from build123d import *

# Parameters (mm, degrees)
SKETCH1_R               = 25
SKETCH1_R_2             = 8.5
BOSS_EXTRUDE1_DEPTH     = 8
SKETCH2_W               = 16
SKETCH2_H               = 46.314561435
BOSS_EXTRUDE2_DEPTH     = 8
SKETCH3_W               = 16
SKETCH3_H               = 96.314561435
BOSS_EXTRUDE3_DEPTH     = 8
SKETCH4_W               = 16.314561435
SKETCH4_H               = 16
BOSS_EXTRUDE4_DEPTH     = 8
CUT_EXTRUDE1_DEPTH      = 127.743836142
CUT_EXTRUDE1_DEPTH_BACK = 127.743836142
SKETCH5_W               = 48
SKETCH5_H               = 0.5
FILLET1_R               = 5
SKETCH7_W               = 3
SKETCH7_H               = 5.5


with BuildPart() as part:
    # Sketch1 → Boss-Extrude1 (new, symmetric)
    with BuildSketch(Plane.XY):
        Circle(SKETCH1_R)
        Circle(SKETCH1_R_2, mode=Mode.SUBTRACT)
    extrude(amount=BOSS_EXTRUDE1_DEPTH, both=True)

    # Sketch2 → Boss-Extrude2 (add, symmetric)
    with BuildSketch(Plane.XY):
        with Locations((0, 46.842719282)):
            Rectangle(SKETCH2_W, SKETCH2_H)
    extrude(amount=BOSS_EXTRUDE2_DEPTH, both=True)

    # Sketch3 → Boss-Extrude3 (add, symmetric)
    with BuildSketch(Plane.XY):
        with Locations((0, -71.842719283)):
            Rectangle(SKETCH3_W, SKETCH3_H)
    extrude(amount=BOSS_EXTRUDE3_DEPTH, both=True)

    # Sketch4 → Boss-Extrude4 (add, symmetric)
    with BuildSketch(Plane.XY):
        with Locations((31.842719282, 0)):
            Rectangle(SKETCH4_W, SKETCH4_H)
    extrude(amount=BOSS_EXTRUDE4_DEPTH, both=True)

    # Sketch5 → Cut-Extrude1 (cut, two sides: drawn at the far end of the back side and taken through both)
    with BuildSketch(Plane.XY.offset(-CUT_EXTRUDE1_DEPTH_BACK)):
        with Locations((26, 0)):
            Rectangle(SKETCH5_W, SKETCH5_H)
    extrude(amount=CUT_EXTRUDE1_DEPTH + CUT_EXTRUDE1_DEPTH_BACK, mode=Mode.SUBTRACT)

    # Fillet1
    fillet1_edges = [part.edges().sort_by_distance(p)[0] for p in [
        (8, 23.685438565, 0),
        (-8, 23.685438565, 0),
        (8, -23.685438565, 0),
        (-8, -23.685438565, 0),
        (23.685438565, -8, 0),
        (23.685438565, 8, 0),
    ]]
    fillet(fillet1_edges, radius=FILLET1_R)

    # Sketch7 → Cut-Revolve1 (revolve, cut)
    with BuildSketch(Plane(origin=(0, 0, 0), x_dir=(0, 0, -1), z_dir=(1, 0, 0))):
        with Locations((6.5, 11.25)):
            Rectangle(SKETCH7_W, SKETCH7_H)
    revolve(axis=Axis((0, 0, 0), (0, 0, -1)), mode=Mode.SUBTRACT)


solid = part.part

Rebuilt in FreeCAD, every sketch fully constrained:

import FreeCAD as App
import Part
import Sketcher
from FreeCAD import Vector


def edges_at(feature, points):
    """Names of the edges that pass closest to the given points."""
    edges = feature.Shape.Edges
    near = lambda p: min(range(len(edges)), key=lambda i: edges[i].distToShape(Part.Vertex(*p))[0])
    return sorted({f"Edge{near(p) + 1}" for p in points})

doc = App.newDocument("Part")
params = doc.addObject("Spreadsheet::Sheet", "Params")
for row, (alias, value) in enumerate([
    ("sketch1_diameter", "50 mm"),
    ("sketch1_diameter2", "17 mm"),
    ("pad1_length", "16 mm"),
    ("sketch2_width", "16 mm"),
    ("pad2_length", "16 mm"),
    ("sketch3_width", "16 mm"),
    ("pad3_length", "16 mm"),
    ("sketch4_height", "16 mm"),
    ("pad4_length", "16 mm"),
    ("sketch5_width", "48 mm"),
    ("sketch5_height", "0.5 mm"),
    ("fillet_radius", "5 mm"),
    ("sketch6_height", "3 mm"),
    ("sketch6_width", "5.5 mm"),
    ("groove_angle", "360 deg"),
], start=1):
    params.set(f"A{row}", alias)
    params.set(f"B{row}", "=" + value)
    params.setAlias(f"B{row}", alias)

body = doc.addObject("PartDesign::Body", "Body")

sketch1 = body.newObject("Sketcher::SketchObject", "Sketch")
sketch1.AttachmentSupport = (doc.getObject("XY_Plane"), [""])
sketch1.MapMode = "FlatFace"
sketch1.addGeometry([
    Part.Circle(Vector(0, 0, 0), Vector(0, 0, 1), 25),
    Part.Circle(Vector(0, 0, 0), Vector(0, 0, 1), 8.5),
], False)
sketch1.addConstraint([
    Sketcher.Constraint("Coincident", 0, 3, -1, 1),
    Sketcher.Constraint("Coincident", 1, 3, -1, 1),
    Sketcher.Constraint("Diameter", 0, 50.0),
    Sketcher.Constraint("Diameter", 1, 17.0),
])
sketch1.setExpression("Constraints[2]", "Params.sketch1_diameter")
sketch1.setExpression("Constraints[3]", "Params.sketch1_diameter2")
pad1 = body.newObject("PartDesign::Pad", "Pad")
pad1.Profile = sketch1
pad1.setExpression("Length", "Params.pad1_length")
pad1.Midplane = True

sketch2 = body.newObject("Sketcher::SketchObject", "Sketch001")
sketch2.AttachmentSupport = (doc.getObject("XY_Plane"), [""])
sketch2.MapMode = "FlatFace"
sketch2.addGeometry([
    Part.LineSegment(Vector(-8, 70, 0), Vector(-8, 23.685439, 0)),
    Part.LineSegment(Vector(-8, 23.685439, 0), Vector(8, 23.685439, 0)),
    Part.LineSegment(Vector(8, 23.685439, 0), Vector(8, 70, 0)),
    Part.LineSegment(Vector(8, 70, 0), Vector(-8, 70, 0)),
], False)
sketch2.addConstraint([
    Sketcher.Constraint("Coincident", 0, 2, 1, 1),
    Sketcher.Constraint("Coincident", 1, 2, 2, 1),
    Sketcher.Constraint("Coincident", 2, 2, 3, 1),
    Sketcher.Constraint("Coincident", 3, 2, 0, 1),
    Sketcher.Constraint("Vertical", 0),
    Sketcher.Constraint("Horizontal", 1),
    Sketcher.Constraint("Vertical", 2),
    Sketcher.Constraint("Horizontal", 3),
    Sketcher.Constraint("DistanceX", 1, 1, 1, 2, 16.0),
    Sketcher.Constraint("DistanceX", 0, 2, -1, 1, 8.0),
    Sketcher.Constraint("DistanceY", -1, 1, 2, 2, 70.0),
    Sketcher.Constraint("DistanceY", 0, 2, 0, 1, 46.314561),
])
sketch2.setExpression("Constraints[8]", "Params.sketch2_width")
pad2 = body.newObject("PartDesign::Pad", "Pad001")
pad2.Profile = sketch2
pad2.setExpression("Length", "Params.pad2_length")
pad2.Midplane = True

sketch3 = body.newObject("Sketcher::SketchObject", "Sketch002")
sketch3.AttachmentSupport = (doc.getObject("XY_Plane"), [""])
sketch3.MapMode = "FlatFace"
sketch3.addGeometry([
    Part.LineSegment(Vector(-8, -23.685439, 0), Vector(-8, -120, 0)),
    Part.LineSegment(Vector(-8, -120, 0), Vector(8, -120, 0)),
    Part.LineSegment(Vector(8, -120, 0), Vector(8, -23.685439, 0)),
    Part.LineSegment(Vector(8, -23.685439, 0), Vector(-8, -23.685439, 0)),
], False)
sketch3.addConstraint([
    Sketcher.Constraint("Coincident", 0, 2, 1, 1),
    Sketcher.Constraint("Coincident", 1, 2, 2, 1),
    Sketcher.Constraint("Coincident", 2, 2, 3, 1),
    Sketcher.Constraint("Coincident", 3, 2, 0, 1),
    Sketcher.Constraint("Vertical", 0),
    Sketcher.Constraint("Horizontal", 1),
    Sketcher.Constraint("Vertical", 2),
    Sketcher.Constraint("Horizontal", 3),
    Sketcher.Constraint("DistanceX", 1, 1, 1, 2, 16.0),
    Sketcher.Constraint("DistanceX", 0, 2, -1, 1, 8.0),
    Sketcher.Constraint("DistanceY", 0, 2, -1, 1, 120.0),
    Sketcher.Constraint("DistanceY", 0, 2, 0, 1, 96.314561),
])
sketch3.setExpression("Constraints[8]", "Params.sketch3_width")
pad3 = body.newObject("PartDesign::Pad", "Pad002")
pad3.Profile = sketch3
pad3.setExpression("Length", "Params.pad3_length")
pad3.Midplane = True

sketch4 = body.newObject("Sketcher::SketchObject", "Sketch003")
sketch4.AttachmentSupport = (doc.getObject("XY_Plane"), [""])
sketch4.MapMode = "FlatFace"
sketch4.addGeometry([
    Part.LineSegment(Vector(23.685439, 8, 0), Vector(23.685439, -8, 0)),
    Part.LineSegment(Vector(23.685439, -8, 0), Vector(40, -8, 0)),
    Part.LineSegment(Vector(40, -8, 0), Vector(40, 8, 0)),
    Part.LineSegment(Vector(40, 8, 0), Vector(23.685439, 8, 0)),
], False)
sketch4.addConstraint([
    Sketcher.Constraint("Coincident", 0, 2, 1, 1),
    Sketcher.Constraint("Coincident", 1, 2, 2, 1),
    Sketcher.Constraint("Coincident", 2, 2, 3, 1),
    Sketcher.Constraint("Coincident", 3, 2, 0, 1),
    Sketcher.Constraint("Vertical", 0),
    Sketcher.Constraint("Horizontal", 1),
    Sketcher.Constraint("Vertical", 2),
    Sketcher.Constraint("Horizontal", 3),
    Sketcher.Constraint("DistanceY", 0, 2, 0, 1, 16.0),
    Sketcher.Constraint("DistanceY", 0, 2, -1, 1, 8.0),
    Sketcher.Constraint("DistanceX", -1, 1, 1, 2, 40.0),
    Sketcher.Constraint("DistanceX", 1, 1, 1, 2, 16.314561),
])
sketch4.setExpression("Constraints[8]", "Params.sketch4_height")
pad4 = body.newObject("PartDesign::Pad", "Pad003")
pad4.Profile = sketch4
pad4.setExpression("Length", "Params.pad4_length")
pad4.Midplane = True

sketch5 = body.newObject("Sketcher::SketchObject", "Sketch004")
sketch5.AttachmentSupport = (doc.getObject("XY_Plane"), [""])
sketch5.MapMode = "FlatFace"
sketch5.addGeometry([
    Part.LineSegment(Vector(2, 0.25, 0), Vector(2, -0.25, 0)),
    Part.LineSegment(Vector(2, -0.25, 0), Vector(50, -0.25, 0)),
    Part.LineSegment(Vector(50, -0.25, 0), Vector(50, 0.25, 0)),
    Part.LineSegment(Vector(50, 0.25, 0), Vector(2, 0.25, 0)),
], False)
sketch5.addConstraint([
    Sketcher.Constraint("Coincident", 0, 2, 1, 1),
    Sketcher.Constraint("Coincident", 1, 2, 2, 1),
    Sketcher.Constraint("Coincident", 2, 2, 3, 1),
    Sketcher.Constraint("Coincident", 3, 2, 0, 1),
    Sketcher.Constraint("Vertical", 0),
    Sketcher.Constraint("Horizontal", 1),
    Sketcher.Constraint("Vertical", 2),
    Sketcher.Constraint("Horizontal", 3),
    Sketcher.Constraint("DistanceX", 1, 1, 1, 2, 48.0),
    Sketcher.Constraint("DistanceY", 0, 2, 0, 1, 0.5),
    Sketcher.Constraint("DistanceX", -1, 1, 0, 2, 2.0),
    Sketcher.Constraint("DistanceY", 0, 2, -1, 1, 0.25),
])
sketch5.setExpression("Constraints[8]", "Params.sketch5_width")
sketch5.setExpression("Constraints[9]", "Params.sketch5_height")
pocket1 = body.newObject("PartDesign::Pocket", "Pocket")
pocket1.Profile = sketch5
pocket1.Type = "ThroughAll"
pocket1.Midplane = True
doc.recompute()

fillet = body.newObject("PartDesign::Fillet", "Fillet")
fillet.Base = (pocket1, edges_at(pocket1, [
    (8, 23.685, 0),
    (-8, 23.685, 0),
    (8, -23.685, 0),
    (-8, -23.685, 0),
    (23.685, -8, 0),
    (23.685, 8, 0),
]))
fillet.setExpression("Radius", "Params.fillet_radius")

sketch6 = body.newObject("Sketcher::SketchObject", "Sketch005")
sketch6.AttachmentSupport = (doc.getObject("YZ_Plane"), [""])
sketch6.MapMode = "FlatFace"
sketch6.addGeometry([
    Part.LineSegment(Vector(14, -5, 0), Vector(8.5, -5, 0)),
    Part.LineSegment(Vector(8.5, -5, 0), Vector(8.5, -8, 0)),
    Part.LineSegment(Vector(8.5, -8, 0), Vector(14, -8, 0)),
    Part.LineSegment(Vector(14, -8, 0), Vector(14, -5, 0)),
], False)
sketch6.addConstraint([
    Sketcher.Constraint("Coincident", 0, 2, 1, 1),
    Sketcher.Constraint("Coincident", 1, 2, 2, 1),
    Sketcher.Constraint("Coincident", 2, 2, 3, 1),
    Sketcher.Constraint("Coincident", 3, 2, 0, 1),
    Sketcher.Constraint("Horizontal", 0),
    Sketcher.Constraint("Vertical", 1),
    Sketcher.Constraint("Horizontal", 2),
    Sketcher.Constraint("Vertical", 3),
    Sketcher.Constraint("DistanceY", 1, 2, 1, 1, 3.0),
    Sketcher.Constraint("DistanceX", 0, 2, 0, 1, 5.5),
    Sketcher.Constraint("DistanceY", 0, 2, -1, 1, 5.0),
    Sketcher.Constraint("DistanceX", -1, 1, 2, 2, 14.0),
])
sketch6.setExpression("Constraints[8]", "Params.sketch6_height")
sketch6.setExpression("Constraints[9]", "Params.sketch6_width")
groove = body.newObject("PartDesign::Groove", "Groove")
groove.Profile = sketch6
groove.ReferenceAxis = (sketch6, ["V_Axis"])
groove.setExpression("Angle", "Params.groove_angle")

doc.recompute()
